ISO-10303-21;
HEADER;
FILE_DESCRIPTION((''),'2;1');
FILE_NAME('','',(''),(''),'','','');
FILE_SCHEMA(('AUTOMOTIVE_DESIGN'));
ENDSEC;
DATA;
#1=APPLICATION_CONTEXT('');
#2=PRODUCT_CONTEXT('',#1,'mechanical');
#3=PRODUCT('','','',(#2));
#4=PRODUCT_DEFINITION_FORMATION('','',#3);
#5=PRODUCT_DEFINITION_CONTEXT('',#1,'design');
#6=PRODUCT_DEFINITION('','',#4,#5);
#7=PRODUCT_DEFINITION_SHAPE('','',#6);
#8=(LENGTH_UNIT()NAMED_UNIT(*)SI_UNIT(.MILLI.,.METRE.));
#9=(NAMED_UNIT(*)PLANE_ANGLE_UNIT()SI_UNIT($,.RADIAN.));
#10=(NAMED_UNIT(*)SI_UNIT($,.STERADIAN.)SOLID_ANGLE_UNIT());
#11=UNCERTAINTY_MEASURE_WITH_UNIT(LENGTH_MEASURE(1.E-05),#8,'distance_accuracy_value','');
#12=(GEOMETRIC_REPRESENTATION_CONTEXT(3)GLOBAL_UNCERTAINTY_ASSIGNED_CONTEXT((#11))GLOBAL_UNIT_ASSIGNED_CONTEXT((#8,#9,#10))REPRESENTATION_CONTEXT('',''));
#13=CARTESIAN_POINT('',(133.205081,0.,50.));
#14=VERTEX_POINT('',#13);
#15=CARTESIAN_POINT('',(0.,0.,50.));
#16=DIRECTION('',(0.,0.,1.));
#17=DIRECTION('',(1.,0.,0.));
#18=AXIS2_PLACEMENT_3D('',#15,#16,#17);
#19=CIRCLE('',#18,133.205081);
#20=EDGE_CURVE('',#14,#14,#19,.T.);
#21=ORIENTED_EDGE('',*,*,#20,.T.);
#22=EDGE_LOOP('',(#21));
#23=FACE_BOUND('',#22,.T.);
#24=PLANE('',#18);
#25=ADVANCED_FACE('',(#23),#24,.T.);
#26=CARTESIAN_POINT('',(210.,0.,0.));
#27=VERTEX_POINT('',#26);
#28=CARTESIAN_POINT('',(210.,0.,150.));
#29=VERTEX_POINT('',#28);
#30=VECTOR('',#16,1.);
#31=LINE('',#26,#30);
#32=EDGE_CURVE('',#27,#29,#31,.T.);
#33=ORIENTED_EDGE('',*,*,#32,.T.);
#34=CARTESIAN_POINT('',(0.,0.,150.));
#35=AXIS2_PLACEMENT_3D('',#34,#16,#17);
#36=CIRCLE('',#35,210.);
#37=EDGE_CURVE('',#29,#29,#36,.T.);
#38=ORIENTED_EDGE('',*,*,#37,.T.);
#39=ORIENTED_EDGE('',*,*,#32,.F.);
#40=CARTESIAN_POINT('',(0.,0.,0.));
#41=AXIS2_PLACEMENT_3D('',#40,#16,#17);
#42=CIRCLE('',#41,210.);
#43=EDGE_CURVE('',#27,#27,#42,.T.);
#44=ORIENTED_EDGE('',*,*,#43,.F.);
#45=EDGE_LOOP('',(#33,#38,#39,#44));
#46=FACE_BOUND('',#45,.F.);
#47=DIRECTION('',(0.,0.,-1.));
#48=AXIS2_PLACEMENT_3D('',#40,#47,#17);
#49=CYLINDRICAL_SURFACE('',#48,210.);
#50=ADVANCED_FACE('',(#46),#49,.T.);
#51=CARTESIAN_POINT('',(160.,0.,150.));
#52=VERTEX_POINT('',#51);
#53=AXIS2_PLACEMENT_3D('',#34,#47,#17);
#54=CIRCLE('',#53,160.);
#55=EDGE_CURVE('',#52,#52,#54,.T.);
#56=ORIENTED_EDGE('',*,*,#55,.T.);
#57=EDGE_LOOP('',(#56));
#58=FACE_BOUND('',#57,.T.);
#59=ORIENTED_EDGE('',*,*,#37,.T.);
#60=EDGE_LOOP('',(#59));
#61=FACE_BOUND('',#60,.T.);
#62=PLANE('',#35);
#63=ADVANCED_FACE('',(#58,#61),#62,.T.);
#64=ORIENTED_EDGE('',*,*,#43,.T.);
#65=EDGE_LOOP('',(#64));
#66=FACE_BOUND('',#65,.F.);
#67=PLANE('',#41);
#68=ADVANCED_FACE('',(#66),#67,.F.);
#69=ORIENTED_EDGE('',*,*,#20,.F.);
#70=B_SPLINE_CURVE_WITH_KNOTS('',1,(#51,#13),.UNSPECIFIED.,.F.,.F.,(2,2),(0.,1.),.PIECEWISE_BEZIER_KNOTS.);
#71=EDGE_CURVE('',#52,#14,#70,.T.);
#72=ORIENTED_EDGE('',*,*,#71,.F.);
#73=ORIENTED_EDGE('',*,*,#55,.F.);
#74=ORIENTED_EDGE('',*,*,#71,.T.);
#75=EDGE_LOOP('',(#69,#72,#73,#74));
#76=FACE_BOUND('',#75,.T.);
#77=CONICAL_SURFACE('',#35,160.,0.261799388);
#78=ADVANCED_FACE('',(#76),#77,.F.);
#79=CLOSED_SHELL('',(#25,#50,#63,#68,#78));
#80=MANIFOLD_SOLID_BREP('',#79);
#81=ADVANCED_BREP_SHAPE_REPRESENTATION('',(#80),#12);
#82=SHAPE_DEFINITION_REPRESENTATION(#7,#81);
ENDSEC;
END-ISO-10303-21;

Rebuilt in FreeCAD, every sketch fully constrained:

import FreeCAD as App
import Part
import Sketcher
from FreeCAD import Vector
Q = App.Units.Quantity

doc = App.newDocument("Part")
body = doc.addObject("PartDesign::Body", "Body")

# Sketch on XY plane
sketch1 = body.newObject("Sketcher::SketchObject", "Sketch")
sketch1.AttachmentSupport = (doc.getObject("XY_Plane"), [""])
sketch1.MapMode = "FlatFace"
sketch1.addGeometry(Part.Circle(Vector(0, 0, 0), Vector(0, 0, 1), 210), False)
sketch1.addConstraint([
    Sketcher.Constraint("Coincident", 0, 3, -1, 1),
    Sketcher.Constraint("Diameter", 0, Q("420 mm")),
])
pad1 = body.newObject("PartDesign::Pad", "Pad")
pad1.Profile = sketch1
pad1.Length = 150

# Sketch on XY plane
sketch2 = body.newObject("Sketcher::SketchObject", "Sketch001")
sketch2.AttachmentSupport = (doc.getObject("XY_Plane"), [""])
sketch2.MapMode = "FlatFace"
sketch2.AttachmentOffset = App.Placement(Vector(0, 0, 150), App.Rotation())
sketch2.addGeometry(Part.Circle(Vector(0, 0, 0), Vector(0, 0, 1), 160), False)
sketch2.addConstraint([
    Sketcher.Constraint("Coincident", 0, 3, -1, 1),
    Sketcher.Constraint("Diameter", 0, Q("320 mm")),
])
pocket1 = body.newObject("PartDesign::Pocket", "Pocket")
pocket1.Profile = sketch2
pocket1.Length = 100
pocket1.TaperAngle = -15

doc.recompute()
